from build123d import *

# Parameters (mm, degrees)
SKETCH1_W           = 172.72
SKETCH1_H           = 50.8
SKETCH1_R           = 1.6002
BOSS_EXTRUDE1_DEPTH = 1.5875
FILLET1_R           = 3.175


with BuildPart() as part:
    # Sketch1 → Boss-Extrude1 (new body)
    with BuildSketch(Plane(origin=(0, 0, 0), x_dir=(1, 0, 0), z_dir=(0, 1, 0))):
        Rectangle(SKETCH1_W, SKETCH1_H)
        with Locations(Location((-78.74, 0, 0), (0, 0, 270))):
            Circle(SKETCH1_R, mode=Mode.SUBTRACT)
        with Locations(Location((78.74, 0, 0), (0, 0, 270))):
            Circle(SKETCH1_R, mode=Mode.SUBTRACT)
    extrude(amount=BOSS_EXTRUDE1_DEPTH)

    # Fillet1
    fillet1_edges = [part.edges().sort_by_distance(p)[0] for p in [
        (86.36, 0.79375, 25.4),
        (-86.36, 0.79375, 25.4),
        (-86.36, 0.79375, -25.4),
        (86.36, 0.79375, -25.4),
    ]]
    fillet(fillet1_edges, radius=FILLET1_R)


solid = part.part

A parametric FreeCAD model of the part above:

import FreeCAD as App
import Part
import Sketcher

V = App.Vector
Q = App.Units.Quantity


def edges_at(feature, points):
    """Names of the edges that pass closest to the given points."""
    edges = feature.Shape.Edges
    near = lambda p: min(range(len(edges)), key=lambda i: edges[i].distToShape(Part.Vertex(*p))[0])
    return sorted({f"Edge{near(p) + 1}" for p in points})

doc = App.newDocument("Part")
body = doc.addObject("PartDesign::Body", "Body")

# Sketch on XZ plane
sketch1 = doc.addObject("Sketcher::SketchObject", "Sketch")
body.addObject(sketch1)
sketch1.AttachmentSupport = (doc.XZ_Plane, [""])
sketch1.MapMode = "FlatFace"
sketch1.addGeometry(Part.LineSegment(V(-86.4, -25.4, 0), V(-86.4, 25.4, 0)), False)
sketch1.addGeometry(Part.LineSegment(V(-86.4, 25.4, 0), V(86.4, 25.4, 0)), False)
sketch1.addGeometry(Part.LineSegment(V(86.4, 25.4, 0), V(86.4, -25.4, 0)), False)
sketch1.addGeometry(Part.LineSegment(V(86.4, -25.4, 0), V(-86.4, -25.4, 0)), False)
sketch1.addGeometry(Part.Circle(V(-78.7, 0, 0), V(0, 0, 1), 1.6), False)
sketch1.addGeometry(Part.Circle(V(78.7, 0, 0), V(0, 0, 1), 1.6), False)
sketch1.addConstraint(Sketcher.Constraint("Coincident", 0, 2, 1, 1))
sketch1.addConstraint(Sketcher.Constraint("Coincident", 1, 2, 2, 1))
sketch1.addConstraint(Sketcher.Constraint("Coincident", 2, 2, 3, 1))
sketch1.addConstraint(Sketcher.Constraint("Coincident", 3, 2, 0, 1))
sketch1.addConstraint(Sketcher.Constraint("Vertical", 0))
sketch1.addConstraint(Sketcher.Constraint("Horizontal", 1))
sketch1.addConstraint(Sketcher.Constraint("Vertical", 2))
sketch1.addConstraint(Sketcher.Constraint("Horizontal", 3))
sketch1.addConstraint(Sketcher.Constraint("Equal", 4, 5))
sketch1.addConstraint(Sketcher.Constraint("Symmetric", 4, 3, 5, 3, -1, 1))
sketch1.addConstraint(Sketcher.Constraint("Symmetric", 0, 2, 2, 2, -1, 1))
sketch1.addConstraint(Sketcher.Constraint("PointOnObject", 4, 3, -1))
sketch1.addConstraint(Sketcher.Constraint("DistanceY", 0, 1, 0, 2, Q("2 in")))
sketch1.addConstraint(Sketcher.Constraint("Diameter", 4, Q("0.126 in")))
sketch1.addConstraint(Sketcher.Constraint("DistanceX", 1, 1, 1, 2, Q("6.8 in")))
sketch1.addConstraint(Sketcher.Constraint("DistanceX", 4, 3, -1, 1, Q("3.1 in")))
pad1 = doc.addObject("PartDesign::Pad", "Pad")
body.addObject(pad1)
pad1.Profile = sketch1
pad1.Length = Q("0.0625 in")
pad1.Reversed = True
doc.recompute()

fillet = doc.addObject("PartDesign::Fillet", "Fillet")
body.addObject(fillet)
fillet.Base = (pad1, edges_at(pad1, [
    (86.36, 0.794, 25.4),
    (-86.36, 0.794, 25.4),
    (-86.36, 0.794, -25.4),
    (86.36, 0.794, -25.4),
]))
fillet.Radius = Q("0.125 in")

doc.recompute()
